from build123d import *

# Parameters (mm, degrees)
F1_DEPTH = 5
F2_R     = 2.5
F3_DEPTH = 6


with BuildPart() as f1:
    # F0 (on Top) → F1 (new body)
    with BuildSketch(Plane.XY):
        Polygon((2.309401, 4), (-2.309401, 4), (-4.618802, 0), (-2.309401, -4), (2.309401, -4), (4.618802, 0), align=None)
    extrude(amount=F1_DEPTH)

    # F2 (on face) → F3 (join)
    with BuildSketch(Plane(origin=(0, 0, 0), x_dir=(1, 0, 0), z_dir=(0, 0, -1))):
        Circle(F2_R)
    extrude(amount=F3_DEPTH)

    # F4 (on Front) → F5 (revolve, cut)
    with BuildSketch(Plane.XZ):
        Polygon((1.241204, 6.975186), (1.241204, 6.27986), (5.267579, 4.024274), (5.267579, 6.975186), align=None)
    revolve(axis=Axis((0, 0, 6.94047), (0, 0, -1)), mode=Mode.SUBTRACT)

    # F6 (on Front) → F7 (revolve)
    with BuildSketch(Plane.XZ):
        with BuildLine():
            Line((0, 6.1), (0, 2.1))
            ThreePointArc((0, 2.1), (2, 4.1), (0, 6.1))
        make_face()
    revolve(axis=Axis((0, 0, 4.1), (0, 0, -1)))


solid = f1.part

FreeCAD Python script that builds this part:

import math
import FreeCAD as App
import Part
import Sketcher

V = App.Vector
Q = App.Units.Quantity

doc = App.newDocument("Part")
params = doc.addObject("Spreadsheet::Sheet", "Params")
for row, (alias, value) in enumerate([
    ("pad1_length", "5 mm"),
    ("sketch2_diameter", "5 mm"),
    ("pad2_length", "6 mm"),
    ("groove_angle", "360 deg"),
    ("sketch4_radius", "2 mm"),
    ("revolution_angle", "360 deg"),
], start=1):
    params.set(f"A{row}", alias)
    params.set(f"B{row}", "=" + value)
    params.setAlias(f"B{row}", alias)

body = doc.addObject("PartDesign::Body", "Body")

# Sketch on XY plane
sketch1 = doc.addObject("Sketcher::SketchObject", "Sketch")
body.addObject(sketch1)
sketch1.AttachmentSupport = (doc.XY_Plane, [""])
sketch1.MapMode = "FlatFace"
sketch1.addGeometry(Part.LineSegment(V(2.3, 4, 0), V(-2.3, 4, 0)), False)
sketch1.addGeometry(Part.LineSegment(V(-2.3, 4, 0), V(-4.6, 0, 0)), False)
sketch1.addGeometry(Part.LineSegment(V(-4.6, 0, 0), V(-2.3, -4, 0)), False)
sketch1.addGeometry(Part.LineSegment(V(-2.3, -4, 0), V(2.3, -4, 0)), False)
sketch1.addGeometry(Part.LineSegment(V(2.3, -4, 0), V(4.6, 0, 0)), False)
sketch1.addGeometry(Part.LineSegment(V(4.6, 0, 0), V(2.3, 4, 0)), False)
sketch1.addConstraint(Sketcher.Constraint("Coincident", 0, 2, 1, 1))
sketch1.addConstraint(Sketcher.Constraint("Coincident", 1, 2, 2, 1))
sketch1.addConstraint(Sketcher.Constraint("Coincident", 2, 2, 3, 1))
sketch1.addConstraint(Sketcher.Constraint("Coincident", 3, 2, 4, 1))
sketch1.addConstraint(Sketcher.Constraint("Coincident", 4, 2, 5, 1))
sketch1.addConstraint(Sketcher.Constraint("Coincident", 5, 2, 0, 1))
sketch1.addConstraint(Sketcher.Constraint("Horizontal", 0))
sketch1.addConstraint(Sketcher.Constraint("Horizontal", 3))
sketch1.addConstraint(Sketcher.Constraint("Symmetric", 0, 2, 3, 2, -1, 1))
sketch1.addConstraint(Sketcher.Constraint("Symmetric", 1, 2, 4, 2, -1, 1))
sketch1.addConstraint(Sketcher.Constraint("PointOnObject", 1, 2, -1))
sketch1.addConstraint(Sketcher.Constraint("Parallel", 2, 5))
sketch1.addConstraint(Sketcher.Constraint("Vertical", 0, 2, 2, 2))
sketch1.addConstraint(Sketcher.Constraint("Angle", 1, Q("-119.999999 deg")))
sketch1.addConstraint(Sketcher.Constraint("DistanceY", -1, 1, 0, 2, Q("4 mm")))
sketch1.addConstraint(Sketcher.Constraint("DistanceX", 0, 2, 0, 1, Q("4.618802 mm")))
pad1 = doc.addObject("PartDesign::Pad", "Pad")
body.addObject(pad1)
pad1.Profile = sketch1
pad1.setExpression("Length", "Params.pad1_length")

# Sketch on XY plane
sketch2 = doc.addObject("Sketcher::SketchObject", "Sketch001")
body.addObject(sketch2)
sketch2.AttachmentSupport = (doc.XY_Plane, [""])
sketch2.MapMode = "FlatFace"
sketch2.addGeometry(Part.Circle(V(0, 0, 0), V(0, 0, 1), 2.5), False)
sketch2.addConstraint(Sketcher.Constraint("Coincident", 0, 3, -1, 1))
sketch2.addConstraint(Sketcher.Constraint("Diameter", 0, Q("5 mm")))
sketch2.setExpression("Constraints[1]", "Params.sketch2_diameter")
pad2 = doc.addObject("PartDesign::Pad", "Pad001")
body.addObject(pad2)
pad2.Profile = sketch2
pad2.setExpression("Length", "Params.pad2_length")
pad2.Reversed = True

# Sketch on XZ plane
sketch3 = doc.addObject("Sketcher::SketchObject", "Sketch002")
body.addObject(sketch3)
sketch3.AttachmentSupport = (doc.XZ_Plane, [""])
sketch3.MapMode = "FlatFace"
sketch3.addGeometry(Part.LineSegment(V(1.2, 7, 0), V(1.2, 6.3, 0)), False)
sketch3.addGeometry(Part.LineSegment(V(1.2, 6.3, 0), V(5.3, 4, 0)), False)
sketch3.addGeometry(Part.LineSegment(V(5.3, 4, 0), V(5.3, 7, 0)), False)
sketch3.addGeometry(Part.LineSegment(V(5.3, 7, 0), V(1.2, 7, 0)), False)
sketch3.addConstraint(Sketcher.Constraint("Coincident", 0, 2, 1, 1))
sketch3.addConstraint(Sketcher.Constraint("Coincident", 1, 2, 2, 1))
sketch3.addConstraint(Sketcher.Constraint("Coincident", 2, 2, 3, 1))
sketch3.addConstraint(Sketcher.Constraint("Coincident", 3, 2, 0, 1))
sketch3.addConstraint(Sketcher.Constraint("Vertical", 0))
sketch3.addConstraint(Sketcher.Constraint("Vertical", 2))
sketch3.addConstraint(Sketcher.Constraint("Horizontal", 3))
sketch3.addConstraint(Sketcher.Constraint("DistanceY", 2, 1, 2, 2, Q("2.950912 mm")))
sketch3.addConstraint(Sketcher.Constraint("DistanceX", 3, 2, 3, 1, Q("4.026375 mm")))
sketch3.addConstraint(Sketcher.Constraint("DistanceY", 0, 2, 0, 1, Q("0.695326 mm")))
sketch3.addConstraint(Sketcher.Constraint("DistanceY", -1, 1, 0, 2, Q("6.27986 mm")))
sketch3.addConstraint(Sketcher.Constraint("DistanceX", -1, 1, 1, 2, Q("5.267579 mm")))
groove = doc.addObject("PartDesign::Groove", "Groove")
body.addObject(groove)
groove.Profile = sketch3
groove.ReferenceAxis = (sketch3, ["V_Axis"])
groove.setExpression("Angle", "Params.groove_angle")

# Sketch on XZ plane
sketch4 = doc.addObject("Sketcher::SketchObject", "Sketch003")
body.addObject(sketch4)
sketch4.AttachmentSupport = (doc.XZ_Plane, [""])
sketch4.MapMode = "FlatFace"
sketch4.addGeometry(Part.LineSegment(V(0, 6.1, 0), V(0, 2.1, 0)), False)
sketch4.addGeometry(Part.ArcOfCircle(Part.Circle(V(0, 4.1, 0), V(0, 0, 1), 2), math.radians(-90), math.radians(90)), False)
sketch4.addConstraint(Sketcher.Constraint("Coincident", 0, 1, 1, 2))
sketch4.addConstraint(Sketcher.Constraint("Coincident", 1, 1, 0, 2))
sketch4.addConstraint(Sketcher.Constraint("Vertical", 0))
sketch4.addConstraint(Sketcher.Constraint("PointOnObject", 1, 3, -2))
sketch4.addConstraint(Sketcher.Constraint("PointOnObject", 0, 1, -2))
sketch4.addConstraint(Sketcher.Constraint("Radius", 1, Q("2 mm")))
sketch4.addConstraint(Sketcher.Constraint("DistanceY", -1, 1, 1, 3, Q("4.1 mm")))
sketch4.setExpression("Constraints[5]", "Params.sketch4_radius")
revolution = doc.addObject("PartDesign::Revolution", "Revolution")
body.addObject(revolution)
revolution.Profile = sketch4
revolution.ReferenceAxis = (sketch4, ["V_Axis"])
revolution.setExpression("Angle", "Params.revolution_angle")

doc.recompute()
